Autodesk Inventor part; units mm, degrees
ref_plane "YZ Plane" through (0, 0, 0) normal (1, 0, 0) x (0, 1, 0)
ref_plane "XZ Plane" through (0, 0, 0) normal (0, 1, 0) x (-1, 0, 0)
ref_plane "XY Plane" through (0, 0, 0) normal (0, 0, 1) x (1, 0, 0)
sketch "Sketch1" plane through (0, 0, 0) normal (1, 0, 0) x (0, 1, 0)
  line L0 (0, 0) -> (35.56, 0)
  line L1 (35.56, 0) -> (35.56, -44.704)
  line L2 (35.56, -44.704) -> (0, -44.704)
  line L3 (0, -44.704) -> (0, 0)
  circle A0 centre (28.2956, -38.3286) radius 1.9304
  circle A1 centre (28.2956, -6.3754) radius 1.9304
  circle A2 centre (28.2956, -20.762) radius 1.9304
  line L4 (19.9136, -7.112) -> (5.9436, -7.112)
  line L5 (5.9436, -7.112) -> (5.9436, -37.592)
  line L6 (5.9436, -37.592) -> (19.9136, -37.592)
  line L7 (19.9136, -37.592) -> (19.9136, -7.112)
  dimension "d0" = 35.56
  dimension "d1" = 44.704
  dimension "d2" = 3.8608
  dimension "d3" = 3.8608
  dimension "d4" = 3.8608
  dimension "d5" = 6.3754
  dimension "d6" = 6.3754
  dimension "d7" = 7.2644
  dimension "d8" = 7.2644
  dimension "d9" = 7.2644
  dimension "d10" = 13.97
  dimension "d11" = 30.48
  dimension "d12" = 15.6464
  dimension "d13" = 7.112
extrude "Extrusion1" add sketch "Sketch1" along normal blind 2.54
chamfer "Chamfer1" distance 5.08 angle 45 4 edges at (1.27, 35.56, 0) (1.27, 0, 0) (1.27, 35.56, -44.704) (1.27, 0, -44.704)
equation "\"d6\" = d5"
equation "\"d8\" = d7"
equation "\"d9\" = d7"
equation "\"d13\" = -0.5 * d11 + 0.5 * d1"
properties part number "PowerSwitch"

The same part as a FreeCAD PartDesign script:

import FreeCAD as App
import Part
import Sketcher
Q = App.Units.Quantity


def edges_at(feature, points):
    """Names of the edges that pass closest to the given points."""
    edges = feature.Shape.Edges
    near = lambda p: min(range(len(edges)), key=lambda i: edges[i].distToShape(Part.Vertex(*p))[0])
    return sorted({f"Edge{near(p) + 1}" for p in points})


def add_polygon(sketch, points):
    """Adds a closed chain of lines whose ends are joined by coincident constraints."""
    first, n = sketch.GeometryCount, len(points)
    for a, b in zip(points, points[1:] + points[:1]):
        sketch.addGeometry(Part.LineSegment(App.Vector(*a, 0), App.Vector(*b, 0)), False)
    for i in range(n):
        sketch.addConstraint(Sketcher.Constraint("Coincident", first + i, 2, first + (i + 1) % n, 1))

doc = App.newDocument("Part")
body = doc.addObject("PartDesign::Body", "Body")

sketch1 = doc.addObject("Sketcher::SketchObject", "Sketch")
body.addObject(sketch1)
sketch1.AttachmentSupport = (doc.YZ_Plane, [""])
sketch1.MapMode = "FlatFace"
add_polygon(sketch1, [(35.56, 0), (0, 0), (0, -44.704), (35.56, -44.704)])
sketch1.addGeometry(Part.Circle(App.Vector(28.2956, -38.3286, 0), App.Vector(0, 0, 1), 1.9304), False)
add_polygon(sketch1, [(5.9436, -7.112), (19.9136, -7.112), (19.9136, -37.592), (5.9436, -37.592)])
sketch1.addGeometry(Part.Circle(App.Vector(28.2956, -20.762, 0), App.Vector(0, 0, 1), 1.9304), False)
sketch1.addGeometry(Part.Circle(App.Vector(28.2956, -6.3754, 0), App.Vector(0, 0, 1), 1.9304), False)
sketch1.addConstraint([
    Sketcher.Constraint("Horizontal", 0),
    Sketcher.Constraint("Vertical", 1),
    Sketcher.Constraint("Horizontal", 2),
    Sketcher.Constraint("Vertical", 3),
    Sketcher.Constraint("Horizontal", 5),
    Sketcher.Constraint("Vertical", 6),
    Sketcher.Constraint("Horizontal", 7),
    Sketcher.Constraint("Vertical", 8),
    Sketcher.Constraint("Coincident", 0, 2, -1, 1),
    Sketcher.Constraint("Equal", 4, 9),
    Sketcher.Constraint("Equal", 9, 10),
    Sketcher.Constraint("Vertical", 4, 3, 9, 3),
    Sketcher.Constraint("Vertical", 9, 3, 10, 3),
    Sketcher.Constraint("Diameter", 4, Q("0.152 in")),
    Sketcher.Constraint("DistanceX", 0, 2, 0, 1, Q("1.4 in")),
    Sketcher.Constraint("DistanceY", 6, 2, 6, 1, Q("1.2 in")),
    Sketcher.Constraint("DistanceX", 5, 1, 5, 2, Q("0.55 in")),
    Sketcher.Constraint("DistanceY", 1, 2, 1, 1, Q("1.76 in")),
    Sketcher.Constraint("DistanceY", 5, 2, -1, 1, Q("0.28 in")),
    Sketcher.Constraint("DistanceY", 10, 3, -1, 1, Q("0.251 in")),
    Sketcher.Constraint("DistanceY", 1, 2, 4, 3, Q("0.251 in")),
    Sketcher.Constraint("DistanceX", 4, 3, 2, 2, Q("0.286 in")),
    Sketcher.Constraint("DistanceX", 5, 2, 3, 2, Q("0.616 in")),
    Sketcher.Constraint("DistanceY", 9, 3, -1, 1, Q("0.8174 in")),
])
pad1 = doc.addObject("PartDesign::Pad", "Pad")
body.addObject(pad1)
pad1.Profile = sketch1
pad1.Length = Q("0.1 in")
doc.recompute()

chamfer = doc.addObject("PartDesign::Chamfer", "Chamfer")
body.addObject(chamfer)
chamfer.Base = (pad1, edges_at(pad1, [
    (1.27, 35.56, 0),
    (1.27, 0, 0),
    (1.27, 35.56, -44.704),
    (1.27, 0, -44.704),
]))
chamfer.Size = Q("0.2 in")

doc.recompute()
